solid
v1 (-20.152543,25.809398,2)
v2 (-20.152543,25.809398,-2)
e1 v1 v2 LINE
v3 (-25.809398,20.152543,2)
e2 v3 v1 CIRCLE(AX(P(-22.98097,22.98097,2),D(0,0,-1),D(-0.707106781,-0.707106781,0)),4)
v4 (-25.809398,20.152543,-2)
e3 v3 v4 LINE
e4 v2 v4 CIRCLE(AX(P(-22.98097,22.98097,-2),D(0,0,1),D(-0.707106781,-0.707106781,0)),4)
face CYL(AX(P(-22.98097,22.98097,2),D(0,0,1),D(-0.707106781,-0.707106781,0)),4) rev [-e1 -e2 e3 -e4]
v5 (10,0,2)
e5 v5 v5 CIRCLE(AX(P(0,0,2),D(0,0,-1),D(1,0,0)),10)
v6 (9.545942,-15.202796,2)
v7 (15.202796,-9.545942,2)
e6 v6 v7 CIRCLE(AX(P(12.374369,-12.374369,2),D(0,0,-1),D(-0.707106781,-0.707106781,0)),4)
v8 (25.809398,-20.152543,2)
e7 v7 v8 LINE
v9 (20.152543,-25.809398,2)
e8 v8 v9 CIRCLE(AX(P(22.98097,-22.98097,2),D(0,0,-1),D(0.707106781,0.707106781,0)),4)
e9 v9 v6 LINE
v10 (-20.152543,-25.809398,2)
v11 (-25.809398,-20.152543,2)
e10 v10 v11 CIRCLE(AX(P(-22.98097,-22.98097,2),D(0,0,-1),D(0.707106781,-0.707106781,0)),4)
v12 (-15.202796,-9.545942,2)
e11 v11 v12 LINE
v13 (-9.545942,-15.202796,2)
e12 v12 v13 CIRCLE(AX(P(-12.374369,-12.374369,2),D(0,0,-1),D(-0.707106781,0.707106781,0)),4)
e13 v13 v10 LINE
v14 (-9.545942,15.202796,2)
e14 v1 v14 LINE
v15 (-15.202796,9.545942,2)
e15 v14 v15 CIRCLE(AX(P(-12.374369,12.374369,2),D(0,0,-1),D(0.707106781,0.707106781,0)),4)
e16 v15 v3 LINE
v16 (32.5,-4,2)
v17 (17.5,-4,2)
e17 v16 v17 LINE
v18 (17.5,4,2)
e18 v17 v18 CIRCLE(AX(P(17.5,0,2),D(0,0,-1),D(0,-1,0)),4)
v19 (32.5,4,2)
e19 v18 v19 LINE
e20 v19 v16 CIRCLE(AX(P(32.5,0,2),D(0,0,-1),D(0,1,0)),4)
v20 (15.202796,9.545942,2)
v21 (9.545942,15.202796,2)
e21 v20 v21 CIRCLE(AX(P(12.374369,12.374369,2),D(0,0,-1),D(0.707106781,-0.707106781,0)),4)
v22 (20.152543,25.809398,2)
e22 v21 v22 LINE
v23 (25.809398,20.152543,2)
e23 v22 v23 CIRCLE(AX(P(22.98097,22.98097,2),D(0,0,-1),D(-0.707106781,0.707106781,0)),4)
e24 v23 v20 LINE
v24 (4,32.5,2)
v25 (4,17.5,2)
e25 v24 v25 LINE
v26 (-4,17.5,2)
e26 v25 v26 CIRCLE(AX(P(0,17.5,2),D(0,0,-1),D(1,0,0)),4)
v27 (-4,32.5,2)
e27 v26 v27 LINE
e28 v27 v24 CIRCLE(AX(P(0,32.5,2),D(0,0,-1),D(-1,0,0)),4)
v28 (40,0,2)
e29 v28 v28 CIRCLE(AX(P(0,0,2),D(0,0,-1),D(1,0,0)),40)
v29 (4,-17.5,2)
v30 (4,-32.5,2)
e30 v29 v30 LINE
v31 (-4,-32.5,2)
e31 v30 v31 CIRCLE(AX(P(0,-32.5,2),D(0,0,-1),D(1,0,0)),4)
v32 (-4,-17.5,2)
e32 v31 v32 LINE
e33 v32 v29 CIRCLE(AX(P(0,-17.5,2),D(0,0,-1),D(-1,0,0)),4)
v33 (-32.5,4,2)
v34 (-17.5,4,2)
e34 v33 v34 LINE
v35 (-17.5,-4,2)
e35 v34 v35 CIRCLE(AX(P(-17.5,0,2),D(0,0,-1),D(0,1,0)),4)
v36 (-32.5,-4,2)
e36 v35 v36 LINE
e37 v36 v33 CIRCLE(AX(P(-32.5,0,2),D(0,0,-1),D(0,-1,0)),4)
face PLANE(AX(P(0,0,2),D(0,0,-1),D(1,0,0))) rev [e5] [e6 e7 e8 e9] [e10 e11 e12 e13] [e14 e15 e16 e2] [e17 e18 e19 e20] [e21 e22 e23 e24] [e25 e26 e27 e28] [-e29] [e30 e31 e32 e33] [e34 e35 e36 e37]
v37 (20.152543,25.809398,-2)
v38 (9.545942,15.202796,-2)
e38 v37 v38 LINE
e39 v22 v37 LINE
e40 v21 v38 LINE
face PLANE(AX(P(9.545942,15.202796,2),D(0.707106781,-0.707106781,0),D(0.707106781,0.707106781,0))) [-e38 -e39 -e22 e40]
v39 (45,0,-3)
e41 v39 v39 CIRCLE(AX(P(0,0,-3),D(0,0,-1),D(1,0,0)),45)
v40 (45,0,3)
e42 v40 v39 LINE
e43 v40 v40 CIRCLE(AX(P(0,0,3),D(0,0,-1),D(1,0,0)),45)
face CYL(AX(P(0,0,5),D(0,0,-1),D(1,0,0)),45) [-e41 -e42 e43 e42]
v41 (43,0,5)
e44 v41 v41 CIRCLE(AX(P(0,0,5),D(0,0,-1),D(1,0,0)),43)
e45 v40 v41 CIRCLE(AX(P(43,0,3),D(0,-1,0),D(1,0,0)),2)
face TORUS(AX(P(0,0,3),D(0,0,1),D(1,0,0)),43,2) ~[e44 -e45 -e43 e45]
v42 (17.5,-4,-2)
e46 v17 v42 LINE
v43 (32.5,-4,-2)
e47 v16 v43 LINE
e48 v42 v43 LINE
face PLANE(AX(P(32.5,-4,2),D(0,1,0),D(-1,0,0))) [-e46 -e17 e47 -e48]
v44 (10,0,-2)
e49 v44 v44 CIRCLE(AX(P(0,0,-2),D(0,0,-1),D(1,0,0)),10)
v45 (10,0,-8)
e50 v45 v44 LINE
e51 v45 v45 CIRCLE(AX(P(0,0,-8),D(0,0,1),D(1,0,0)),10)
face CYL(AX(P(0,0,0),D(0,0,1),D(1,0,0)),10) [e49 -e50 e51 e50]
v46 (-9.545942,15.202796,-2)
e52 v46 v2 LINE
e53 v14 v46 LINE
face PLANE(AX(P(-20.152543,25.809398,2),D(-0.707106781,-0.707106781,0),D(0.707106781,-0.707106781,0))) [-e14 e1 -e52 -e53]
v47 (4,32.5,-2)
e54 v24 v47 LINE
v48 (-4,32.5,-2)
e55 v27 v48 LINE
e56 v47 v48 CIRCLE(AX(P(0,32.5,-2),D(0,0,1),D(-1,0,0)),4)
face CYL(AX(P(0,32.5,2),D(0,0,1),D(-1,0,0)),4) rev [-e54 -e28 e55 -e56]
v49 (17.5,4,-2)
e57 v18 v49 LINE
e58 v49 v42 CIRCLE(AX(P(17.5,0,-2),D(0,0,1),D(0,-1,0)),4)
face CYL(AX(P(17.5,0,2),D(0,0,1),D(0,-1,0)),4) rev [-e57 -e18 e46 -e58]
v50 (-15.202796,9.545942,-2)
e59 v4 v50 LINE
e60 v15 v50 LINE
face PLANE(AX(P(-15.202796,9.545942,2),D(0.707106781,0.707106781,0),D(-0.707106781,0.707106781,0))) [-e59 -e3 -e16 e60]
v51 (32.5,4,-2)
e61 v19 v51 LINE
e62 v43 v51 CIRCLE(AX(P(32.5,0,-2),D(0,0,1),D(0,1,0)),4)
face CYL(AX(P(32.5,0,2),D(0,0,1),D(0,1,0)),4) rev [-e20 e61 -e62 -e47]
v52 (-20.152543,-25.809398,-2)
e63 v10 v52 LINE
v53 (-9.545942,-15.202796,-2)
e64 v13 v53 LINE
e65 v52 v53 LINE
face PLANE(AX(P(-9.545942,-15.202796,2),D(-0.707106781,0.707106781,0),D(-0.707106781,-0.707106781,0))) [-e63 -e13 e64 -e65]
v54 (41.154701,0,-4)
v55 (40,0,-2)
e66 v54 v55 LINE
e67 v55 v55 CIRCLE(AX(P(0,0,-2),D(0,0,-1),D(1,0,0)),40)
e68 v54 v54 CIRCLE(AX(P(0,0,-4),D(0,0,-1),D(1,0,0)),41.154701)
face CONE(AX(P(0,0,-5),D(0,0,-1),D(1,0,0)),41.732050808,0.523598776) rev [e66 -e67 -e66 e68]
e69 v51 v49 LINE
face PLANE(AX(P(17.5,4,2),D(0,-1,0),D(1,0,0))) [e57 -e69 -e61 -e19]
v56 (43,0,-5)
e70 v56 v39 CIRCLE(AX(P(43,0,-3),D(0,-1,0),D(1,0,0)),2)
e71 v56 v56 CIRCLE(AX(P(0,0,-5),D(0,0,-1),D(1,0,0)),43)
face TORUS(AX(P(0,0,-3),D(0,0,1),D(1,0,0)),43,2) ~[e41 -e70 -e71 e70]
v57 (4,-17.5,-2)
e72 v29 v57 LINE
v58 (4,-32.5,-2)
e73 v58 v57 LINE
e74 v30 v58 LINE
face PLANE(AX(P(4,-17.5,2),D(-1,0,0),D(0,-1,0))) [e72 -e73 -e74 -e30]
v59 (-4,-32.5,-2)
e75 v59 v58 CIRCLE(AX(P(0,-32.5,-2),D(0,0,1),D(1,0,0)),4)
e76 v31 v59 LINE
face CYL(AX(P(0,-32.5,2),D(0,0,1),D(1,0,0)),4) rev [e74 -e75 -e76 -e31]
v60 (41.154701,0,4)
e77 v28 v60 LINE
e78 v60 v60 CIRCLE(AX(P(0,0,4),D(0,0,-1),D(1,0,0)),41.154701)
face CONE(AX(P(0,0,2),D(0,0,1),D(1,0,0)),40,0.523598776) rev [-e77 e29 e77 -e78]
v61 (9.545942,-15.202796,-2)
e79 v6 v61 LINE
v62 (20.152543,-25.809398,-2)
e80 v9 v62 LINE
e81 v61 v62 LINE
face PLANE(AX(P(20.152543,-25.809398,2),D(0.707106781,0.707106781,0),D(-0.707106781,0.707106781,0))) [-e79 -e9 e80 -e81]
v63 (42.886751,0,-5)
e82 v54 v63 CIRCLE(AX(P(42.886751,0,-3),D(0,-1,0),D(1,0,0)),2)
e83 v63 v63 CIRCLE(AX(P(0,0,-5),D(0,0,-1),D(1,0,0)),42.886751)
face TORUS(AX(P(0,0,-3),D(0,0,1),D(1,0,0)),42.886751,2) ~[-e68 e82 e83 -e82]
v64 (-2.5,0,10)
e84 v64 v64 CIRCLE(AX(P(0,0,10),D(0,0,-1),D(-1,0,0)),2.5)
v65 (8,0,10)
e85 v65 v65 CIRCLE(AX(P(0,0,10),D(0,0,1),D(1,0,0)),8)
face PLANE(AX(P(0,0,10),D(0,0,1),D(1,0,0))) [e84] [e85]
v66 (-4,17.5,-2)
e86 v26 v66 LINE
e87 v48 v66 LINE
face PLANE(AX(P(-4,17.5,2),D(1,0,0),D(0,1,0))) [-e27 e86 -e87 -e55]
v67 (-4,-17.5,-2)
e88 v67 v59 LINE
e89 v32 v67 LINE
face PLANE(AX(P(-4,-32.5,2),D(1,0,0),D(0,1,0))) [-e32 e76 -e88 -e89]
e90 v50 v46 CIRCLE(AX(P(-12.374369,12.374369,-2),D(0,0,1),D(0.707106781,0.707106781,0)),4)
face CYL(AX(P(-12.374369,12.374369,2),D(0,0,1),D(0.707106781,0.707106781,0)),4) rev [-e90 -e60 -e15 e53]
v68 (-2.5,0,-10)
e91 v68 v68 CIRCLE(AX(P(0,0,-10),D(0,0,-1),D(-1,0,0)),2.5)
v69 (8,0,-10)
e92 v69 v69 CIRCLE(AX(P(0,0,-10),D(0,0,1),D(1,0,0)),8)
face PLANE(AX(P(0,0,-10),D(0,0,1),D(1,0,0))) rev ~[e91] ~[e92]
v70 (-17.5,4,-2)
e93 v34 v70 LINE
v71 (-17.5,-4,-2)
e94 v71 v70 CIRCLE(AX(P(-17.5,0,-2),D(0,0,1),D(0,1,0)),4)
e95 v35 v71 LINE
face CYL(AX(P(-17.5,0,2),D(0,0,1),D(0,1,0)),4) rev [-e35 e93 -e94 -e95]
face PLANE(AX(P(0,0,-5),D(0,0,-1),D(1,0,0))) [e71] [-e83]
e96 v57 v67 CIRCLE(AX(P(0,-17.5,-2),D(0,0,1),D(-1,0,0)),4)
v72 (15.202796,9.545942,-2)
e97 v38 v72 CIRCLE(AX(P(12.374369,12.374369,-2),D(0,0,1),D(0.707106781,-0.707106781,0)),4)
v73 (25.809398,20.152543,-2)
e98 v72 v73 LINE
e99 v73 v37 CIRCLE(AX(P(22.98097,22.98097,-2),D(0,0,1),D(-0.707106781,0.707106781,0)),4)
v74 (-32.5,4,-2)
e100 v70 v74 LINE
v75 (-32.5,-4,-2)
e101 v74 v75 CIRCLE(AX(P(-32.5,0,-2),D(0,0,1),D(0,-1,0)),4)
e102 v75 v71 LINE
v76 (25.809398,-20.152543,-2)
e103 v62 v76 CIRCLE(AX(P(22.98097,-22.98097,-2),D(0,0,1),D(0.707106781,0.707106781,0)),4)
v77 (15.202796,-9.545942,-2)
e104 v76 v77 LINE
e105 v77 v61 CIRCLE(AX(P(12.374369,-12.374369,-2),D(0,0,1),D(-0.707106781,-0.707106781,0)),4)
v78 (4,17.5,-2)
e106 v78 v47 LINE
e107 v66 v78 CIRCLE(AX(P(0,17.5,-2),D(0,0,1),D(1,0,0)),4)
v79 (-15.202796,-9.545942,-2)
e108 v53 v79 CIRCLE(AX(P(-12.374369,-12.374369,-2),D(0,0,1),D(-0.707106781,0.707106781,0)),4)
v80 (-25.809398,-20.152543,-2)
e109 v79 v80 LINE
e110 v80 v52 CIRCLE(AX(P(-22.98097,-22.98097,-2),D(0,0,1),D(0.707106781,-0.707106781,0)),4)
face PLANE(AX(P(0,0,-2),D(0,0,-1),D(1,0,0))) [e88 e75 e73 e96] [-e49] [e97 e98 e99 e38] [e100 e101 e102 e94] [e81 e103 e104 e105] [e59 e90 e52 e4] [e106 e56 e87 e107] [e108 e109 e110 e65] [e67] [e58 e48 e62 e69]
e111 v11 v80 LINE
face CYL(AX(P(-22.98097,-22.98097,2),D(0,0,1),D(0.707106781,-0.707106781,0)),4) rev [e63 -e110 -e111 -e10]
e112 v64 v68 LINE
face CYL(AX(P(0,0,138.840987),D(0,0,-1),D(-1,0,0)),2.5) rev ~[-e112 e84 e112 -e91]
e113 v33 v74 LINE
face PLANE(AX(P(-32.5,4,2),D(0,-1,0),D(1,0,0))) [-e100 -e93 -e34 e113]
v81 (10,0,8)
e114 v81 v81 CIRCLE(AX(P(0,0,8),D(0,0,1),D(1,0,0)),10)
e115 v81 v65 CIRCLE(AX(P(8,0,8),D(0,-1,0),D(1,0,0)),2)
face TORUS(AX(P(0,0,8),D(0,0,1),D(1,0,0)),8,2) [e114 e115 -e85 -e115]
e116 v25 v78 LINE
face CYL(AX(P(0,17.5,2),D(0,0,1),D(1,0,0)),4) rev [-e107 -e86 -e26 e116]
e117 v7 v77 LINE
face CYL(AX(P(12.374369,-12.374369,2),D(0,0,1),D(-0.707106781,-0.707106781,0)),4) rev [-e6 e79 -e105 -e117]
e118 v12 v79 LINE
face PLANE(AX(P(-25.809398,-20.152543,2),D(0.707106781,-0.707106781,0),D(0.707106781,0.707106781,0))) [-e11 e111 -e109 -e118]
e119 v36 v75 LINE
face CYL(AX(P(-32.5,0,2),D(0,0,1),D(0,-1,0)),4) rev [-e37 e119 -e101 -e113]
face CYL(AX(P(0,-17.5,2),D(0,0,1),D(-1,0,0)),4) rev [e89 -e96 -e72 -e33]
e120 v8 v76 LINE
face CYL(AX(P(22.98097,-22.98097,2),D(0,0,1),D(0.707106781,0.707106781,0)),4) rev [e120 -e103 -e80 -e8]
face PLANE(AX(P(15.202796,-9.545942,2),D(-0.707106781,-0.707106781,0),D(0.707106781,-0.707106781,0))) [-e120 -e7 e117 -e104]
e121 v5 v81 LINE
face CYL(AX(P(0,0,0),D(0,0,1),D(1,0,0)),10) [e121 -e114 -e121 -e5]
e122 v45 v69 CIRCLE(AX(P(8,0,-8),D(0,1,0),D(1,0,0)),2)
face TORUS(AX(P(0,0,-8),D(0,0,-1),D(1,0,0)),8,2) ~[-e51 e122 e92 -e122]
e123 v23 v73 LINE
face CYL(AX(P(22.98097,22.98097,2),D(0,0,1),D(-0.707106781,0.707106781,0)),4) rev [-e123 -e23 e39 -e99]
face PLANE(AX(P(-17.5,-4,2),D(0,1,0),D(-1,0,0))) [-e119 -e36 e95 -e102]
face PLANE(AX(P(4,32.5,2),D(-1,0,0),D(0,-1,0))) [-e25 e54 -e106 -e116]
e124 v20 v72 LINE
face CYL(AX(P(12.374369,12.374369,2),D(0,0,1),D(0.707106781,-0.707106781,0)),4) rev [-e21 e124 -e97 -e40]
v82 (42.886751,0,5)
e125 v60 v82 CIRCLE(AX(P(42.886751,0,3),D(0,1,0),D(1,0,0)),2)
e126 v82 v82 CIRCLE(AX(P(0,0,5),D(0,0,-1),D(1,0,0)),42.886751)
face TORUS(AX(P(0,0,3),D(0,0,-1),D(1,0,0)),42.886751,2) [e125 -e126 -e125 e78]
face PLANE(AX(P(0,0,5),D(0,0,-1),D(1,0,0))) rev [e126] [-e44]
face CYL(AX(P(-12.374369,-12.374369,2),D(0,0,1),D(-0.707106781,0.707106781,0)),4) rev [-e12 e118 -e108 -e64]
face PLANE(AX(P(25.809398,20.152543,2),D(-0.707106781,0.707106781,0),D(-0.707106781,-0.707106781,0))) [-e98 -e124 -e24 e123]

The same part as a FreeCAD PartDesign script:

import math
import FreeCAD as App
import Part
import Sketcher

V = App.Vector
Q = App.Units.Quantity


def edges_at(feature, points):
    """Names of the edges that pass closest to the given points."""
    edges = feature.Shape.Edges
    near = lambda p: min(range(len(edges)), key=lambda i: edges[i].distToShape(Part.Vertex(*p))[0])
    return sorted({f"Edge{near(p) + 1}" for p in points})


def add_polygon(sketch, points):
    """Adds a closed chain of lines whose ends are joined by coincident constraints."""
    first, n = sketch.GeometryCount, len(points)
    for a, b in zip(points, points[1:] + points[:1]):
        sketch.addGeometry(Part.LineSegment(App.Vector(*a, 0), App.Vector(*b, 0)), False)
    for i in range(n):
        sketch.addConstraint(Sketcher.Constraint("Coincident", first + i, 2, first + (i + 1) % n, 1))

doc = App.newDocument("Part")
body = doc.addObject("PartDesign::Body", "Body")

# Sketch on XY plane
sketch1 = body.newObject("Sketcher::SketchObject", "Sketch")
sketch1.AttachmentSupport = (doc.getObject("XY_Plane"), [""])
sketch1.MapMode = "FlatFace"
sketch1.addGeometry(Part.Circle(V(0, 0, 0), V(0, 0, 1), 10), False)
sketch1.addConstraint(Sketcher.Constraint("Coincident", 0, 3, -1, 1))
sketch1.addConstraint(Sketcher.Constraint("Diameter", 0, Q("20 mm")))
pad1 = body.newObject("PartDesign::Pad", "Pad")
pad1.Profile = sketch1
pad1.Length = 20
pad1.Midplane = True

# Sketch on YZ plane
sketch2 = body.newObject("Sketcher::SketchObject", "Sketch001")
sketch2.AttachmentSupport = (doc.getObject("YZ_Plane"), [""])
sketch2.MapMode = "FlatFace"
add_polygon(sketch2, [(45, -5), (45, 5), (41.732051, 5), (40, 2), (10, 2), (10, -2), (40, -2), (41.732051, -5)])  # lines 0-7
sketch2.addConstraint(Sketcher.Constraint("Vertical", 0))
sketch2.addConstraint(Sketcher.Constraint("Horizontal", 1))
sketch2.addConstraint(Sketcher.Constraint("Horizontal", 3))
sketch2.addConstraint(Sketcher.Constraint("Vertical", 4))
sketch2.addConstraint(Sketcher.Constraint("Horizontal", 5))
sketch2.addConstraint(Sketcher.Constraint("Horizontal", 7))
sketch2.addConstraint(Sketcher.Constraint("Symmetric", 2, 2, 5, 2, -1))
sketch2.addConstraint(Sketcher.Constraint("Symmetric", 1, 2, 6, 2, -1))
sketch2.addConstraint(Sketcher.Constraint("DistanceX", 3, 2, 3, 1, Q("30 mm")))
sketch2.addConstraint(Sketcher.Constraint("DistanceY", 0, 1, 0, 2, Q("10 mm")))
sketch2.addConstraint(Sketcher.Constraint("DistanceY", 4, 2, 4, 1, Q("4 mm")))
sketch2.addConstraint(Sketcher.Constraint("Angle", 2, Q("-120 deg")))
sketch2.addConstraint(Sketcher.Constraint("DistanceX", -1, 1, 0, 2, Q("45 mm")))
sketch2.addConstraint(Sketcher.Constraint("DistanceX", -1, 1, 2, 2, Q("40 mm")))
revolution = body.newObject("PartDesign::Revolution", "Revolution")
revolution.Profile = sketch2
revolution.ReferenceAxis = (sketch2, ["V_Axis"])
revolution.Angle = 360

# Sketch on XY plane
sketch3 = body.newObject("Sketcher::SketchObject", "Sketch002")
sketch3.AttachmentSupport = (doc.getObject("XY_Plane"), [""])
sketch3.MapMode = "FlatFace"
sketch3.AttachmentOffset = App.Placement(V(0, 0, 2), App.Rotation())
sketch3.addGeometry(Part.LineSegment(V(4, 17.5, 0), V(4, 32.5, 0)), False)
sketch3.addGeometry(Part.ArcOfCircle(Part.Circle(V(0, 32.5, 0), V(0, 0, 1), 4), math.radians(0), math.radians(180)), False)
sketch3.addGeometry(Part.LineSegment(V(-4, 32.5, 0), V(-4, 17.5, 0)), False)
sketch3.addGeometry(Part.ArcOfCircle(Part.Circle(V(0, 17.5, 0), V(0, 0, 1), 4), math.radians(180), math.radians(360)), False)
sketch3.addConstraint(Sketcher.Constraint("Tangent", 0, 2, 1, 1))
sketch3.addConstraint(Sketcher.Constraint("Tangent", 1, 2, 2, 1))
sketch3.addConstraint(Sketcher.Constraint("Tangent", 2, 2, 3, 1))
sketch3.addConstraint(Sketcher.Constraint("Tangent", 3, 2, 0, 1))
sketch3.addConstraint(Sketcher.Constraint("Vertical", 0))
sketch3.addConstraint(Sketcher.Constraint("Vertical", 2))
sketch3.addConstraint(Sketcher.Constraint("PointOnObject", 1, 3, -2))
sketch3.addConstraint(Sketcher.Constraint("Radius", 1, Q("4 mm")))
sketch3.addConstraint(Sketcher.Constraint("DistanceY", 0, 1, 0, 2, Q("15 mm")))
sketch3.addConstraint(Sketcher.Constraint("DistanceY", -1, 1, 1, 3, Q("32.5 mm")))
pocket1 = body.newObject("PartDesign::Pocket", "Pocket")
pocket1.Profile = sketch3
pocket1.Length = 10
doc.recompute()

polarpattern = body.newObject("PartDesign::PolarPattern", "PolarPattern")
polarpattern.Originals = [pocket1]
polarpattern.Axis = (doc.getObject("Z_Axis"), [""])
polarpattern.Angle = 360
polarpattern.Occurrences = 8
body.Tip = polarpattern
doc.recompute()

fillet = body.newObject("PartDesign::Fillet", "Fillet")
fillet.Base = (polarpattern, edges_at(polarpattern, [
    (-10, 0, -10),
    (-10, 0, 10),
    (-41.732, 0, -5),
    (-41.732, 0, 5),
    (-45, 0, 5),
    (-45, 0, -5),
]))
fillet.Radius = 2

# Sketch on XY plane
sketch4 = body.newObject("Sketcher::SketchObject", "Sketch003")
sketch4.AttachmentSupport = (doc.getObject("XY_Plane"), [""])
sketch4.MapMode = "FlatFace"
sketch4.AttachmentOffset = App.Placement(V(0, 0, 10), App.Rotation())
sketch4.addGeometry(Part.Circle(V(0, 0, 0), V(0, 0, 1), 2.5), False)
sketch4.addConstraint(Sketcher.Constraint("Coincident", 0, 3, -1, 1))
sketch4.addConstraint(Sketcher.Constraint("Diameter", 0, Q("5 mm")))
doc.recompute()
hole = body.newObject("PartDesign::Hole", "Hole")
hole.Profile = sketch4
hole.ThreadType = "None"
hole.Diameter = 5
hole.DepthType = "ThroughAll"

doc.recompute()
